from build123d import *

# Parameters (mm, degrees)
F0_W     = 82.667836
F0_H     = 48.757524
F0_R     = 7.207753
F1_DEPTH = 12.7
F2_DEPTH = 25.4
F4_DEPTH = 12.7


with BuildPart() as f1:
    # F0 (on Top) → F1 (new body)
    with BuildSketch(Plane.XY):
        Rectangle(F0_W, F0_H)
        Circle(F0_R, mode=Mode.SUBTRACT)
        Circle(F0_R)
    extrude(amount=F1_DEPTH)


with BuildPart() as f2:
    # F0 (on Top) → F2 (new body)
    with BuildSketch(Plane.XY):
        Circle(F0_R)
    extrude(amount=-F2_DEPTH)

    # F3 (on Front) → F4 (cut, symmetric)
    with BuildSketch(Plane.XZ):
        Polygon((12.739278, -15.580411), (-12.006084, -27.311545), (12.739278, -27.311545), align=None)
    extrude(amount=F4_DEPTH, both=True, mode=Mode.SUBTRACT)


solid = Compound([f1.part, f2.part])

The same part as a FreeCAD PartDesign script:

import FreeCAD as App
import Part
import Sketcher
from FreeCAD import Vector

doc = App.newDocument("Part")
params = doc.addObject("Spreadsheet::Sheet", "Params")
for row, (alias, value) in enumerate([
    ("pad1_length", "0.5 in"),
    ("pad2_length", "1 in"),
    ("pocket1_length", "1 in"),
], start=1):
    params.set(f"A{row}", alias)
    params.set(f"B{row}", "=" + value)
    params.setAlias(f"B{row}", alias)

body = doc.addObject("PartDesign::Body", "Body")

# Sketch on XY plane
sketch1 = body.newObject("Sketcher::SketchObject", "Sketch")
sketch1.AttachmentSupport = (doc.getObject("XY_Plane"), [""])
sketch1.MapMode = "FlatFace"
sketch1.addGeometry([
    Part.LineSegment(Vector(-41.333918, 24.378762, 0), Vector(-41.333918, -24.378762, 0)),
    Part.LineSegment(Vector(-41.333918, -24.378762, 0), Vector(41.333918, -24.378762, 0)),
    Part.LineSegment(Vector(41.333918, -24.378762, 0), Vector(41.333918, 24.378762, 0)),
    Part.LineSegment(Vector(41.333918, 24.378762, 0), Vector(-41.333918, 24.378762, 0)),
], False)
sketch1.addConstraint([
    Sketcher.Constraint("Coincident", 0, 2, 1, 1),
    Sketcher.Constraint("Coincident", 1, 2, 2, 1),
    Sketcher.Constraint("Coincident", 2, 2, 3, 1),
    Sketcher.Constraint("Coincident", 3, 2, 0, 1),
    Sketcher.Constraint("Vertical", 0),
    Sketcher.Constraint("Horizontal", 1),
    Sketcher.Constraint("Vertical", 2),
    Sketcher.Constraint("Horizontal", 3),
    Sketcher.Constraint("Symmetric", 0, 2, 2, 2, -1, 1),
    Sketcher.Constraint("DistanceX", 1, 1, 1, 2, 82.667836),
    Sketcher.Constraint("DistanceY", 0, 2, 0, 1, 48.757524),
])
pad1 = body.newObject("PartDesign::Pad", "Pad")
pad1.Profile = sketch1
pad1.setExpression("Length", "Params.pad1_length")
body2 = doc.addObject("PartDesign::Body", "Body001")

# Sketch on XY plane
sketch2 = body2.newObject("Sketcher::SketchObject", "Sketch001")
sketch2.AttachmentSupport = (doc.getObject("XY_Plane001"), [""])
sketch2.MapMode = "FlatFace"
sketch2.addGeometry(Part.Circle(Vector(0, 0, 0), Vector(0, 0, 1), 7.207753), False)
sketch2.addConstraint([
    Sketcher.Constraint("Coincident", 0, 3, -1, 1),
    Sketcher.Constraint("Diameter", 0, 14.415506),
])
pad2 = body2.newObject("PartDesign::Pad", "Pad001")
pad2.Profile = sketch2
pad2.setExpression("Length", "Params.pad2_length")
pad2.Reversed = True

# Sketch on XZ plane
sketch3 = body2.newObject("Sketcher::SketchObject", "Sketch002")
sketch3.AttachmentSupport = (doc.getObject("XZ_Plane001"), [""])
sketch3.MapMode = "FlatFace"
sketch3.addGeometry([
    Part.LineSegment(Vector(12.739278, -15.580411, 0), Vector(-12.006084, -27.311545, 0)),
    Part.LineSegment(Vector(-12.006084, -27.311545, 0), Vector(12.739278, -27.311545, 0)),
    Part.LineSegment(Vector(12.739278, -27.311545, 0), Vector(12.739278, -15.580411, 0)),
], False)
sketch3.addConstraint([
    Sketcher.Constraint("Coincident", 0, 2, 1, 1),
    Sketcher.Constraint("Coincident", 1, 2, 2, 1),
    Sketcher.Constraint("Coincident", 2, 2, 0, 1),
    Sketcher.Constraint("Horizontal", 1),
    Sketcher.Constraint("Vertical", 2),
    Sketcher.Constraint("DistanceX", 1, 1, 1, 2, 24.745362),
    Sketcher.Constraint("Distance", 0, 27.38526),
    Sketcher.Constraint("DistanceY", 2, 2, -1, 1, 15.580411),
    Sketcher.Constraint("DistanceX", 0, 2, -1, 1, 12.006084),
])
pocket1 = body2.newObject("PartDesign::Pocket", "Pocket")
pocket1.Profile = sketch3
pocket1.setExpression("Length", "Params.pocket1_length")
pocket1.Midplane = True

doc.recompute()
